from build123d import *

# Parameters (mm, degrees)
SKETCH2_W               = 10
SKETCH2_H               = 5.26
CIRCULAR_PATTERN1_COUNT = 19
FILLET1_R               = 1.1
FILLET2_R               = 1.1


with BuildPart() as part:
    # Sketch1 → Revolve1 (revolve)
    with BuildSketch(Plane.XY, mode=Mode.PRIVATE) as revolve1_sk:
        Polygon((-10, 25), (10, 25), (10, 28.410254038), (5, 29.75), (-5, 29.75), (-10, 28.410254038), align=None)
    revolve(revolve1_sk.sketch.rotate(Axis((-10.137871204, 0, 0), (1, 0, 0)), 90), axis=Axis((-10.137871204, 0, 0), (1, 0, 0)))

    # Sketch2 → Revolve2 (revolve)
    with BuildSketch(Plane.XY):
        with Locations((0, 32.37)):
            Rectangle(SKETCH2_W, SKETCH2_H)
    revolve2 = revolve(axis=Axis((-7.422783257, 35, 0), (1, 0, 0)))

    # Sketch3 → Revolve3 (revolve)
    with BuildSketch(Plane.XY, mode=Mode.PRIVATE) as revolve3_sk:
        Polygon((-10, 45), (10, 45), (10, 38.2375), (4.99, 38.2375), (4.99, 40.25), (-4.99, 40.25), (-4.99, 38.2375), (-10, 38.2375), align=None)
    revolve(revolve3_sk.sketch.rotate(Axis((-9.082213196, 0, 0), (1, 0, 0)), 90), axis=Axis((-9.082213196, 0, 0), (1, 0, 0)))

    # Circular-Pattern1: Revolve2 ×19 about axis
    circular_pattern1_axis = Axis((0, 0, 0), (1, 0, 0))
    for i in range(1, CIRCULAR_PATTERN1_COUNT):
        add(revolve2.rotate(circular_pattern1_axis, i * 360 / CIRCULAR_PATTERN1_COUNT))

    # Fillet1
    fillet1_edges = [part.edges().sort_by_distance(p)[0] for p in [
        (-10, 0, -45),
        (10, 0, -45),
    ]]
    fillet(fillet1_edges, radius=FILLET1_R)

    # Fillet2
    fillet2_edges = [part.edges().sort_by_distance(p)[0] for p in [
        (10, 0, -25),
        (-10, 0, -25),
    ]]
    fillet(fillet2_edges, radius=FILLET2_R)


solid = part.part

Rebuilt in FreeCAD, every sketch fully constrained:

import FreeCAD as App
import Part
import Sketcher
from FreeCAD import Vector
Q = App.Units.Quantity


def edges_at(feature, points):
    """Names of the edges that pass closest to the given points."""
    edges = feature.Shape.Edges
    near = lambda p: min(range(len(edges)), key=lambda i: edges[i].distToShape(Part.Vertex(*p))[0])
    return sorted({f"Edge{near(p) + 1}" for p in points})


def add_polygon(sketch, points):
    """Adds a closed chain of lines whose ends are joined by coincident constraints."""
    first, n = sketch.GeometryCount, len(points)
    for a, b in zip(points, points[1:] + points[:1]):
        sketch.addGeometry(Part.LineSegment(App.Vector(*a, 0), App.Vector(*b, 0)), False)
    for i in range(n):
        sketch.addConstraint(Sketcher.Constraint("Coincident", first + i, 2, first + (i + 1) % n, 1))

doc = App.newDocument("Part")
params = doc.addObject("Spreadsheet::Sheet", "Params")
for row, (alias, value) in enumerate([
    ("sketch1_width", "20 mm"),
    ("sketch1_width2", "10 mm"),
    ("revolution_angle", "360 deg"),
    ("sketch2_width", "10 mm"),
    ("sketch2_height", "5.26 mm"),
    ("revolution2_angle", "360 deg"),
    ("sketch3_width", "20 mm"),
    ("sketch3_width2", "5.01 mm"),
    ("revolution3_angle", "360 deg"),
    ("fillet_radius", "1.1 mm"),
    ("fillet2_radius", "1.1 mm"),
], start=1):
    params.set(f"A{row}", alias)
    params.set(f"B{row}", "=" + value)
    params.setAlias(f"B{row}", alias)

body = doc.addObject("PartDesign::Body", "Body")

# Sketch on XY plane
sketch1 = body.newObject("Sketcher::SketchObject", "Sketch")
sketch1.AttachmentSupport = (doc.getObject("XY_Plane"), [""])
sketch1.MapMode = "FlatFace"
add_polygon(sketch1, [(-10, 25), (10, 25), (10, 28.4), (5, 29.8), (-5, 29.8), (-10, 28.4)])  # lines 0-5
sketch1.addConstraint(Sketcher.Constraint("Horizontal", 0))
sketch1.addConstraint(Sketcher.Constraint("Vertical", 1))
sketch1.addConstraint(Sketcher.Constraint("Horizontal", 3))
sketch1.addConstraint(Sketcher.Constraint("Vertical", 5))
sketch1.addConstraint(Sketcher.Constraint("Symmetric", 1, 2, 4, 2, -2))
sketch1.addConstraint(Sketcher.Constraint("Equal", 2, 4))
sketch1.addConstraint(Sketcher.Constraint("DistanceX", 0, 1, 0, 2, Q("20 mm")))
sketch1.addConstraint(Sketcher.Constraint("DistanceX", 3, 2, 3, 1, Q("10 mm")))
sketch1.addConstraint(Sketcher.Constraint("Angle", 2, Q("165 deg")))
sketch1.addConstraint(Sketcher.Constraint("DistanceY", -1, 1, 0, 2, Q("25 mm")))
sketch1.addConstraint(Sketcher.Constraint("DistanceY", -1, 1, 2, 2, Q("29.75 mm")))
sketch1.setExpression("Constraints[12]", "Params.sketch1_width")
sketch1.setExpression("Constraints[13]", "Params.sketch1_width2")
revolution = body.newObject("PartDesign::Revolution", "Revolution")
revolution.Profile = sketch1
revolution.ReferenceAxis = (sketch1, ["H_Axis"])
revolution.setExpression("Angle", "Params.revolution_angle")

# Sketch on XY plane
sketch2 = body.newObject("Sketcher::SketchObject", "Sketch001")
sketch2.AttachmentSupport = (doc.getObject("XY_Plane"), [""])
sketch2.MapMode = "FlatFace"
add_polygon(sketch2, [(-5, 35), (-5, 30), (5, 30), (5, 35)])  # lines 0-3
sketch2.addGeometry(Part.LineSegment(Vector(-5, 35, 0), Vector(5, 35, 0)), True)  # axis
sketch2.addConstraint(Sketcher.Constraint("Vertical", 0))
sketch2.addConstraint(Sketcher.Constraint("Horizontal", 1))
sketch2.addConstraint(Sketcher.Constraint("Vertical", 2))
sketch2.addConstraint(Sketcher.Constraint("Horizontal", 3))
sketch2.addConstraint(Sketcher.Constraint("Horizontal", 4))
sketch2.addConstraint(Sketcher.Constraint("Coincident", 4, 1, 3, 2))
sketch2.addConstraint(Sketcher.Constraint("Vertical", 1, 2, 4, 2))
sketch2.addConstraint(Sketcher.Constraint("DistanceX", 1, 1, 1, 2, Q("10 mm")))
sketch2.addConstraint(Sketcher.Constraint("DistanceX", 0, 2, -1, 1, Q("5 mm")))
sketch2.addConstraint(Sketcher.Constraint("DistanceY", -1, 1, 2, 2, Q("35 mm")))
sketch2.addConstraint(Sketcher.Constraint("DistanceY", 0, 2, 0, 1, Q("5.26 mm")))
sketch2.setExpression("Constraints[11]", "Params.sketch2_width")
sketch2.setExpression("Constraints[14]", "Params.sketch2_height")
revolution2 = body.newObject("PartDesign::Revolution", "Revolution001")
revolution2.Profile = sketch2
revolution2.ReferenceAxis = (sketch2, ["Axis0"])
revolution2.setExpression("Angle", "Params.revolution2_angle")

# Sketch on XY plane
sketch3 = body.newObject("Sketcher::SketchObject", "Sketch002")
sketch3.AttachmentSupport = (doc.getObject("XY_Plane"), [""])
sketch3.MapMode = "FlatFace"
add_polygon(sketch3, [(10, 45), (-10, 45), (-10, 38.2), (-5, 38.2), (-5, 40.2), (5, 40.2), (5, 38.2), (10, 38.2)])  # lines 0-7
sketch3.addConstraint(Sketcher.Constraint("Horizontal", 0))
sketch3.addConstraint(Sketcher.Constraint("Vertical", 1))
sketch3.addConstraint(Sketcher.Constraint("Horizontal", 2))
sketch3.addConstraint(Sketcher.Constraint("Vertical", 3))
sketch3.addConstraint(Sketcher.Constraint("Horizontal", 4))
sketch3.addConstraint(Sketcher.Constraint("Vertical", 5))
sketch3.addConstraint(Sketcher.Constraint("Horizontal", 6))
sketch3.addConstraint(Sketcher.Constraint("Vertical", 7))
sketch3.addConstraint(Sketcher.Constraint("Symmetric", 2, 2, 5, 2, -2))
sketch3.addConstraint(Sketcher.Constraint("Equal", 2, 6))
sketch3.addConstraint(Sketcher.Constraint("DistanceX", 0, 2, 0, 1, Q("20 mm")))
sketch3.addConstraint(Sketcher.Constraint("DistanceY", -1, 1, 0, 2, Q("45 mm")))
sketch3.addConstraint(Sketcher.Constraint("DistanceX", 2, 1, 2, 2, Q("5.01 mm")))
sketch3.addConstraint(Sketcher.Constraint("DistanceY", -1, 1, 3, 2, Q("40.25 mm")))
sketch3.addConstraint(Sketcher.Constraint("DistanceY", 1, 2, 1, 1, Q("6.7625 mm")))
sketch3.setExpression("Constraints[18]", "Params.sketch3_width")
sketch3.setExpression("Constraints[20]", "Params.sketch3_width2")
revolution3 = body.newObject("PartDesign::Revolution", "Revolution002")
revolution3.Profile = sketch3
revolution3.ReferenceAxis = (sketch3, ["H_Axis"])
revolution3.setExpression("Angle", "Params.revolution3_angle")
doc.recompute()

polarpattern = body.newObject("PartDesign::PolarPattern", "PolarPattern")
polarpattern.Originals = [revolution2]
polarpattern.Axis = (doc.getObject("X_Axis"), [""])
polarpattern.Angle = 360
polarpattern.Occurrences = 19
body.Tip = polarpattern
doc.recompute()

fillet = body.newObject("PartDesign::Fillet", "Fillet")
fillet.Base = (polarpattern, edges_at(polarpattern, [(-10, 0, -45), (10, 0, -45)]))
fillet.setExpression("Radius", "Params.fillet_radius")
doc.recompute()

fillet2 = body.newObject("PartDesign::Fillet", "Fillet001")
fillet2.Base = (fillet, edges_at(fillet, [(10, 0, -25), (-10, 0, -25)]))
fillet2.setExpression("Radius", "Params.fillet2_radius")

doc.recompute()
